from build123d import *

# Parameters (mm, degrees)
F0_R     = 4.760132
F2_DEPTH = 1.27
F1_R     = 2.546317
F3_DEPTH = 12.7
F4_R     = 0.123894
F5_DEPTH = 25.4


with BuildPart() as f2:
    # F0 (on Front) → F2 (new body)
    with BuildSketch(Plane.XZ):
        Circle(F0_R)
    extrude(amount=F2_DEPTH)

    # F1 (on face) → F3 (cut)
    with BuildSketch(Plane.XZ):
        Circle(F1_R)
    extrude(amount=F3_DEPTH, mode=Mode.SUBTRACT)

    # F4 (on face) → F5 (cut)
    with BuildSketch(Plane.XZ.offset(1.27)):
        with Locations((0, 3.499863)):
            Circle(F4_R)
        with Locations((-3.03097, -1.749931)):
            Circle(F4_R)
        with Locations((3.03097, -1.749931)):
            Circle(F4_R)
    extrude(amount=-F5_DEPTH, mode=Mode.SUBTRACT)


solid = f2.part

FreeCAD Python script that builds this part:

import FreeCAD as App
import Part
import Sketcher
from FreeCAD import Vector
Q = App.Units.Quantity

doc = App.newDocument("Part")
body = doc.addObject("PartDesign::Body", "Body")

# Sketch on XZ plane
sketch1 = body.newObject("Sketcher::SketchObject", "Sketch")
sketch1.AttachmentSupport = (doc.getObject("XZ_Plane"), [""])
sketch1.MapMode = "FlatFace"
sketch1.addGeometry(Part.Circle(Vector(0, 0, 0), Vector(0, 0, 1), 4.760132), False)
sketch1.addConstraint([
    Sketcher.Constraint("Coincident", 0, 3, -1, 1),
    Sketcher.Constraint("Diameter", 0, Q("9.520264 mm")),
])
pad1 = body.newObject("PartDesign::Pad", "Pad")
pad1.Profile = sketch1
pad1.Length = Q("0.05 in")

# Sketch on XZ plane
sketch2 = body.newObject("Sketcher::SketchObject", "Sketch001")
sketch2.AttachmentSupport = (doc.getObject("XZ_Plane"), [""])
sketch2.MapMode = "FlatFace"
sketch2.addGeometry(Part.Circle(Vector(0, 0, 0), Vector(0, 0, 1), 2.546317), False)
sketch2.addConstraint([
    Sketcher.Constraint("Coincident", 0, 3, -1, 1),
    Sketcher.Constraint("Diameter", 0, Q("5.092634 mm")),
])
pocket1 = body.newObject("PartDesign::Pocket", "Pocket")
pocket1.Profile = sketch2
pocket1.Length = Q("0.5 in")
pocket1.Reversed = True

# Sketch on XZ plane
sketch3 = body.newObject("Sketcher::SketchObject", "Sketch002")
sketch3.AttachmentSupport = (doc.getObject("XZ_Plane"), [""])
sketch3.MapMode = "FlatFace"
sketch3.AttachmentOffset = App.Placement(Vector(0, 0, 0.05 * 25.4), App.Rotation())
sketch3.addGeometry([
    Part.Circle(Vector(0, 3.499863, 0), Vector(0, 0, 1), 0.123894),
    Part.Circle(Vector(-3.03097, -1.749931, 0), Vector(0, 0, 1), 0.123894),
    Part.Circle(Vector(3.03097, -1.749931, 0), Vector(0, 0, 1), 0.123894),
], False)
sketch3.addConstraint([
    Sketcher.Constraint("Equal", 0, 1),
    Sketcher.Constraint("Equal", 1, 2),
    Sketcher.Constraint("Symmetric", 1, 3, 2, 3, -2),
    Sketcher.Constraint("PointOnObject", 0, 3, -2),
    Sketcher.Constraint("Diameter", 0, Q("0.247788 mm")),
    Sketcher.Constraint("DistanceX", 1, 3, -1, 1, Q("3.03097 mm")),
    Sketcher.Constraint("DistanceY", 1, 3, -1, 1, Q("1.749931 mm")),
    Sketcher.Constraint("DistanceY", -1, 1, 0, 3, Q("3.499863 mm")),
])
pocket2 = body.newObject("PartDesign::Pocket", "Pocket001")
pocket2.Profile = sketch3
pocket2.Length = Q("1 in")

doc.recompute()
